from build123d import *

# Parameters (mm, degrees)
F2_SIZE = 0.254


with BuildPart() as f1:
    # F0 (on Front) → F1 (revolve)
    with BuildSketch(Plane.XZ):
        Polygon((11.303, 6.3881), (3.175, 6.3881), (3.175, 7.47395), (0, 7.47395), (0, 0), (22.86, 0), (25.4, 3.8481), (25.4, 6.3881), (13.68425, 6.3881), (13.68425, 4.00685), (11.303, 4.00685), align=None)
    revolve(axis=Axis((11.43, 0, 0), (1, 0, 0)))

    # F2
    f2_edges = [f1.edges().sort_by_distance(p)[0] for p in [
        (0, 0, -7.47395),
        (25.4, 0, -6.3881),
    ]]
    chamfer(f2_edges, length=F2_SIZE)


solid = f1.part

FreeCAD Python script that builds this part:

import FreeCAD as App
import Part
import Sketcher
from FreeCAD import Vector
Q = App.Units.Quantity


def edges_at(feature, points):
    """Names of the edges that pass closest to the given points."""
    edges = feature.Shape.Edges
    near = lambda p: min(range(len(edges)), key=lambda i: edges[i].distToShape(Part.Vertex(*p))[0])
    return sorted({f"Edge{near(p) + 1}" for p in points})


def add_polygon(sketch, points):
    """Adds a closed chain of lines whose ends are joined by coincident constraints."""
    first, n = sketch.GeometryCount, len(points)
    for a, b in zip(points, points[1:] + points[:1]):
        sketch.addGeometry(Part.LineSegment(App.Vector(*a, 0), App.Vector(*b, 0)), False)
    for i in range(n):
        sketch.addConstraint(Sketcher.Constraint("Coincident", first + i, 2, first + (i + 1) % n, 1))

doc = App.newDocument("Part")
body = doc.addObject("PartDesign::Body", "Body")

sketch1 = body.newObject("Sketcher::SketchObject", "Sketch")
sketch1.AttachmentSupport = (doc.getObject("XZ_Plane"), [""])
sketch1.MapMode = "FlatFace"
add_polygon(sketch1, [(11.303, 6.3881), (3.175, 6.3881), (3.175, 7.47395), (0, 7.47395), (0, 0), (22.86, 0), (25.4, 3.8481), (25.4, 6.3881), (13.68425, 6.3881), (13.68425, 4.00685), (11.303, 4.00685)])
sketch1.addConstraint(Sketcher.Constraint("Horizontal", 0))
sketch1.addConstraint(Sketcher.Constraint("Vertical", 1))
sketch1.addConstraint(Sketcher.Constraint("Horizontal", 2))
sketch1.addConstraint(Sketcher.Constraint("Vertical", 3))
sketch1.addConstraint(Sketcher.Constraint("Horizontal", 4))
sketch1.addConstraint(Sketcher.Constraint("Vertical", 6))
sketch1.addConstraint(Sketcher.Constraint("Horizontal", 7))
sketch1.addConstraint(Sketcher.Constraint("Vertical", 8))
sketch1.addConstraint(Sketcher.Constraint("Horizontal", 9))
sketch1.addConstraint(Sketcher.Constraint("Vertical", 10))
sketch1.addConstraint(Sketcher.Constraint("Coincident", 3, 2, -1, 1))
sketch1.addConstraint(Sketcher.Constraint("Horizontal", 0, 2, 6, 2))
sketch1.addConstraint(Sketcher.Constraint("Equal", 9, 8))
sketch1.addConstraint(Sketcher.Constraint("DistanceX", 4, 1, 4, 2, Q("0.9 in")))
sketch1.addConstraint(Sketcher.Constraint("DistanceY", 6, 1, 6, 2, Q("0.1 in")))
sketch1.addConstraint(Sketcher.Constraint("DistanceX", -1, 1, 5, 2, Q("1 in")))
sketch1.addConstraint(Sketcher.Constraint("DistanceX", 0, 2, 0, 1, Q("0.32 in")))
sketch1.addConstraint(Sketcher.Constraint("DistanceX", 2, 2, 2, 1, Q("0.125 in")))
sketch1.addConstraint(Sketcher.Constraint("DistanceX", 9, 2, 9, 1, Q("0.09375 in")))
sketch1.addConstraint(Sketcher.Constraint("DistanceY", -1, 1, 0, 2, Q("0.2515 in")))
sketch1.addConstraint(Sketcher.Constraint("DistanceY", 8, 2, 1, 2, Q("0.1365 in")))
revolution = body.newObject("PartDesign::Revolution", "Revolution")
revolution.Profile = sketch1
revolution.ReferenceAxis = (sketch1, ["H_Axis"])
revolution.Angle = 360
doc.recompute()

chamfer = body.newObject("PartDesign::Chamfer", "Chamfer")
chamfer.Base = (revolution, edges_at(revolution, [(0, 0, -7.474), (25.4, 0, -6.388)]))
chamfer.Size = Q("0.01 in")

doc.recompute()
